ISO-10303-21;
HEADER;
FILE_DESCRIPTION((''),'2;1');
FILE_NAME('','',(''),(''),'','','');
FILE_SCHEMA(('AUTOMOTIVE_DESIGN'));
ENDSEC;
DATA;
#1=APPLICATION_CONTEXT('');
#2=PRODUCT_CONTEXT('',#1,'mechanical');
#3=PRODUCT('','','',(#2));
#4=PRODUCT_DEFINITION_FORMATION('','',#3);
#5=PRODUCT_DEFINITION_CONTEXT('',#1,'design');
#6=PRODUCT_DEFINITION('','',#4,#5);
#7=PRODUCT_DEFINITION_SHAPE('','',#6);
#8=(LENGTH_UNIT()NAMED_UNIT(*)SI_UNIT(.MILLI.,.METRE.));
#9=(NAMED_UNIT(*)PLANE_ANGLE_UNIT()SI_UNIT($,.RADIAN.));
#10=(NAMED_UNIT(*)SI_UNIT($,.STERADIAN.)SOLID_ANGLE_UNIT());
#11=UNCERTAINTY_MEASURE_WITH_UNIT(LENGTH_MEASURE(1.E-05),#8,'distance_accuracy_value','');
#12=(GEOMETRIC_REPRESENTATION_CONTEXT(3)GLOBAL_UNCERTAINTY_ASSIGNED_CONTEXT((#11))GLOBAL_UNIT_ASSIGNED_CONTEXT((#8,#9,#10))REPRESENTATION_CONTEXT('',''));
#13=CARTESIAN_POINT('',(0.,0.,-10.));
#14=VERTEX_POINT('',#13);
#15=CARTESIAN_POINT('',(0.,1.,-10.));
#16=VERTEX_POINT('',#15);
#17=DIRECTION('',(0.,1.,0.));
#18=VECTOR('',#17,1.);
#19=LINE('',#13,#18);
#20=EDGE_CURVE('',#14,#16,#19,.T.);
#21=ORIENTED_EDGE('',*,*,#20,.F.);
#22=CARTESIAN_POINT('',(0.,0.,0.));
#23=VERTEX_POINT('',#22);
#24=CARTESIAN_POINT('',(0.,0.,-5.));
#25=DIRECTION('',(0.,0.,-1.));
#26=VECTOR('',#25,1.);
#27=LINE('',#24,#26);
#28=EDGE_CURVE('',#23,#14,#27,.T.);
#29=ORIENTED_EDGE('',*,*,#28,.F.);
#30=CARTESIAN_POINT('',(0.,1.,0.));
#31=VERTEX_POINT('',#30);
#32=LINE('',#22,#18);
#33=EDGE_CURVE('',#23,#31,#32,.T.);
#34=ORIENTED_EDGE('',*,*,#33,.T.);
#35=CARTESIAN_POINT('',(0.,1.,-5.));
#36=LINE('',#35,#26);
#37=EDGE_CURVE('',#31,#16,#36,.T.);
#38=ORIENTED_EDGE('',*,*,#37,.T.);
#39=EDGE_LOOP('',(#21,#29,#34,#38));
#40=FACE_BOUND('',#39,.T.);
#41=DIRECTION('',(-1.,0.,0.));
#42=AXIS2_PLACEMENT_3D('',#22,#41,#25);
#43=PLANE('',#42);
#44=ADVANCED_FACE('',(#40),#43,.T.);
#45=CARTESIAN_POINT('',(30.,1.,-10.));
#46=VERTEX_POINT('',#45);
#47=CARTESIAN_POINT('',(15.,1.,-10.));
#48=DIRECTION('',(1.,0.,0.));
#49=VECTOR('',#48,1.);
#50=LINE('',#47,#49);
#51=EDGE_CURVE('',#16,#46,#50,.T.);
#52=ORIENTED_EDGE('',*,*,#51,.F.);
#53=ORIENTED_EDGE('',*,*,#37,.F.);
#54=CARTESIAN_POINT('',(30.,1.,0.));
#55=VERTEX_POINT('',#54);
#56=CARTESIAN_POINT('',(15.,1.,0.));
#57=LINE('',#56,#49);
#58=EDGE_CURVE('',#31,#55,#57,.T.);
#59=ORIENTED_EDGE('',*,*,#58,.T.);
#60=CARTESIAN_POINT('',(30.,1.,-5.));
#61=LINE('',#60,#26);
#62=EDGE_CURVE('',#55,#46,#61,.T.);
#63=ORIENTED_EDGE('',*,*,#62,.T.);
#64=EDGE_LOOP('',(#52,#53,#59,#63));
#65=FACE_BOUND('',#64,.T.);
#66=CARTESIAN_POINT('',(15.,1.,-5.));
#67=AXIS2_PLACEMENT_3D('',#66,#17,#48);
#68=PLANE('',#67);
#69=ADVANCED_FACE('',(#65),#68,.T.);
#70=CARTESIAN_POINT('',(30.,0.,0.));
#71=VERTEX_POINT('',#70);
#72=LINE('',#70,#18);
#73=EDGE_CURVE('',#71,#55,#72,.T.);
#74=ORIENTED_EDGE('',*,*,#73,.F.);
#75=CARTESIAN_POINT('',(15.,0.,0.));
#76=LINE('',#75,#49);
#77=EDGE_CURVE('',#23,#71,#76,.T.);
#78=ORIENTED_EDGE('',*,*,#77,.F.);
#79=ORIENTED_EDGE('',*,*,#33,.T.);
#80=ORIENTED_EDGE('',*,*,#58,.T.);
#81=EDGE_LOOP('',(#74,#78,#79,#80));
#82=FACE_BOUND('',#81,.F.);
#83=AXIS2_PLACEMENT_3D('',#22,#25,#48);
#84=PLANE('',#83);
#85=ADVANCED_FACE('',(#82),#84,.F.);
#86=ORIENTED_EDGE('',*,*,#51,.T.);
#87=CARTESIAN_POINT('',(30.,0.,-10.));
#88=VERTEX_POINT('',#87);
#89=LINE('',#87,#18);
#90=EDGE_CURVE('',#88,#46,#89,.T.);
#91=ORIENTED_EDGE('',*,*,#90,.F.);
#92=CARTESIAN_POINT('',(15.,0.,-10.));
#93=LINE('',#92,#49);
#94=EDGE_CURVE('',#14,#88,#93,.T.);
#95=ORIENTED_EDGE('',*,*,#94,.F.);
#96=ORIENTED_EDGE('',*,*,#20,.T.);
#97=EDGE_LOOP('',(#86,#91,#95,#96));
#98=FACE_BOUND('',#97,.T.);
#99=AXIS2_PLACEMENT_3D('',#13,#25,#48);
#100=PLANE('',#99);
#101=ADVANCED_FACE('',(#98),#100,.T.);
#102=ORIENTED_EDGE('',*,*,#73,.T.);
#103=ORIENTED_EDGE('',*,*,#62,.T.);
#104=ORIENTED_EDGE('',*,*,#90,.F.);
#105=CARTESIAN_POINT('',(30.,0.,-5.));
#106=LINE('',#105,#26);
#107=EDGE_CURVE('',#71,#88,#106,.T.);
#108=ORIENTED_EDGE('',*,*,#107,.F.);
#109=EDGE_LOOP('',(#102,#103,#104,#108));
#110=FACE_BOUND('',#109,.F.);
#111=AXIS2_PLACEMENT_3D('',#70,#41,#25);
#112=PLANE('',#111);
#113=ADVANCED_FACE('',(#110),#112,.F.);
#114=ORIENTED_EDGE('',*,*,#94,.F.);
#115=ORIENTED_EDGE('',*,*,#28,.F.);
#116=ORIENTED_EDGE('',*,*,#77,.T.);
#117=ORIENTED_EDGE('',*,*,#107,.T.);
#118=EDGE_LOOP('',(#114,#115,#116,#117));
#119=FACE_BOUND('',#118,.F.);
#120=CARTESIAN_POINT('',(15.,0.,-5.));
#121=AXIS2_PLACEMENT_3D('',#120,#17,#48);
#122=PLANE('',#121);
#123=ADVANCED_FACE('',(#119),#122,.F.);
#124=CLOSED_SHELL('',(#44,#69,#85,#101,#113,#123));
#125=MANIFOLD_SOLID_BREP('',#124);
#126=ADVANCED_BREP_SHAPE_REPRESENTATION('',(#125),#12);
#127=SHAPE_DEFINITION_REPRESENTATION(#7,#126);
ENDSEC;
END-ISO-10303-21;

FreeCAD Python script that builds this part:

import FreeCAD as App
import Part
import Sketcher

V = App.Vector


def add_polygon(sketch, points):
    """Adds a closed chain of lines whose ends are joined by coincident constraints."""
    first, n = sketch.GeometryCount, len(points)
    for a, b in zip(points, points[1:] + points[:1]):
        sketch.addGeometry(Part.LineSegment(App.Vector(*a, 0), App.Vector(*b, 0)), False)
    for i in range(n):
        sketch.addConstraint(Sketcher.Constraint("Coincident", first + i, 2, first + (i + 1) % n, 1))

doc = App.newDocument("Part")
body = doc.addObject("PartDesign::Body", "Body")

# Sketch on XZ plane
sketch1 = body.newObject("Sketcher::SketchObject", "Sketch")
sketch1.AttachmentSupport = (doc.getObject("XZ_Plane"), [""])
sketch1.MapMode = "FlatFace"
add_polygon(sketch1, [(0, -10), (0, 0), (30, 0), (30, -10)])  # lines 0-3
sketch1.addConstraint([
    Sketcher.Constraint("Vertical", 0),
    Sketcher.Constraint("Horizontal", 1),
    Sketcher.Constraint("Vertical", 2),
    Sketcher.Constraint("Horizontal", 3),
    Sketcher.Constraint("Coincident", 0, 2, -1, 1),
    Sketcher.Constraint("DistanceX", 1, 1, 1, 2, 30.0),
    Sketcher.Constraint("DistanceY", 0, 1, 0, 2, 10.0),
])
pad1 = body.newObject("PartDesign::Pad", "Pad")
pad1.Profile = sketch1
pad1.Length = 1
pad1.Reversed = True

doc.recompute()
